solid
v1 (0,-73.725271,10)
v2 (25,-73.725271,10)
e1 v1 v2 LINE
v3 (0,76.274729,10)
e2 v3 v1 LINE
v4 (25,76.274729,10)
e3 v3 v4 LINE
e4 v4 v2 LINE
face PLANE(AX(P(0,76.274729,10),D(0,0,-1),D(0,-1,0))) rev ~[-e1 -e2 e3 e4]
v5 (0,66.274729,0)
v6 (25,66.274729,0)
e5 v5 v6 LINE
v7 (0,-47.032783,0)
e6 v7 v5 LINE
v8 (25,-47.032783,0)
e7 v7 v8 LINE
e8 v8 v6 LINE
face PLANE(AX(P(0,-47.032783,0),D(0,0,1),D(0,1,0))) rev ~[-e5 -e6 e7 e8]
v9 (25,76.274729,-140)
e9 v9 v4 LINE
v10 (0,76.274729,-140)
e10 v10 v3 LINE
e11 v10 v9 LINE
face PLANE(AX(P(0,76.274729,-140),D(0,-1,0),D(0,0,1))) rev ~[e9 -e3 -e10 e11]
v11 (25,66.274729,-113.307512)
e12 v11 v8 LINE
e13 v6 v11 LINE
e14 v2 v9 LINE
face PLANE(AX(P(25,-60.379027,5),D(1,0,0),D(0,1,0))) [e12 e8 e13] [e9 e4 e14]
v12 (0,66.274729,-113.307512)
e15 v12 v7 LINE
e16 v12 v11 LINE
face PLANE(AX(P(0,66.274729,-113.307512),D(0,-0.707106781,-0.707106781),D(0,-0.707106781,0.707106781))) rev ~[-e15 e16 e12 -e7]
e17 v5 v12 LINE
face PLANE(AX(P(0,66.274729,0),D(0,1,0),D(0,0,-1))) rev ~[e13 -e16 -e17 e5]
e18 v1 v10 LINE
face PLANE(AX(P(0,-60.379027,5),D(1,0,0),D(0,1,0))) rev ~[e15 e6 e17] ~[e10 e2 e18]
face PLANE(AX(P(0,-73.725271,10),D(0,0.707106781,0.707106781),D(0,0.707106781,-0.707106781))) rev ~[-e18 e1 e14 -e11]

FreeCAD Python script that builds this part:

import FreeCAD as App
import Part
import Sketcher


def add_polygon(sketch, points):
    """Adds a closed chain of lines whose ends are joined by coincident constraints."""
    first, n = sketch.GeometryCount, len(points)
    for a, b in zip(points, points[1:] + points[:1]):
        sketch.addGeometry(Part.LineSegment(App.Vector(*a, 0), App.Vector(*b, 0)), False)
    for i in range(n):
        sketch.addConstraint(Sketcher.Constraint("Coincident", first + i, 2, first + (i + 1) % n, 1))

doc = App.newDocument("Part")
body = doc.addObject("PartDesign::Body", "Body")

# Sketch on YZ plane
sketch1 = body.newObject("Sketcher::SketchObject", "Sketch")
sketch1.AttachmentSupport = (doc.getObject("YZ_Plane"), [""])
sketch1.MapMode = "FlatFace"
add_polygon(sketch1, [(-73.725271, 10), (76.274729, -140), (76.274729, 10)])  # lines 0-2
add_polygon(sketch1, [(-47.032783, 0), (66.274729, 0), (66.274729, -113.307512)])  # lines 3-5
sketch1.addConstraint(Sketcher.Constraint("Vertical", 1))
sketch1.addConstraint(Sketcher.Constraint("Horizontal", 2))
sketch1.addConstraint(Sketcher.Constraint("Horizontal", 3))
sketch1.addConstraint(Sketcher.Constraint("Vertical", 4))
sketch1.addConstraint(Sketcher.Constraint("PointOnObject", 3, 2, -1))
sketch1.addConstraint(Sketcher.Constraint("Parallel", 0, 5))
sketch1.addConstraint(Sketcher.Constraint("Equal", 2, 1))
sketch1.addConstraint(Sketcher.Constraint("DistanceX", 2, 2, 2, 1, 150.0))
sketch1.addConstraint(Sketcher.Constraint("DistanceY", 0, 2, -1, 1, 140.0))
sketch1.addConstraint(Sketcher.Constraint("DistanceX", 3, 2, 1, 2, 10.0))
sketch1.addConstraint(Sketcher.Constraint("DistanceX", 3, 1, 3, 2, 113.307512))
sketch1.addConstraint(Sketcher.Constraint("DistanceX", -1, 1, 0, 2, 76.274729))
pad1 = body.newObject("PartDesign::Pad", "Pad")
pad1.Profile = sketch1
pad1.Length = 25

doc.recompute()
